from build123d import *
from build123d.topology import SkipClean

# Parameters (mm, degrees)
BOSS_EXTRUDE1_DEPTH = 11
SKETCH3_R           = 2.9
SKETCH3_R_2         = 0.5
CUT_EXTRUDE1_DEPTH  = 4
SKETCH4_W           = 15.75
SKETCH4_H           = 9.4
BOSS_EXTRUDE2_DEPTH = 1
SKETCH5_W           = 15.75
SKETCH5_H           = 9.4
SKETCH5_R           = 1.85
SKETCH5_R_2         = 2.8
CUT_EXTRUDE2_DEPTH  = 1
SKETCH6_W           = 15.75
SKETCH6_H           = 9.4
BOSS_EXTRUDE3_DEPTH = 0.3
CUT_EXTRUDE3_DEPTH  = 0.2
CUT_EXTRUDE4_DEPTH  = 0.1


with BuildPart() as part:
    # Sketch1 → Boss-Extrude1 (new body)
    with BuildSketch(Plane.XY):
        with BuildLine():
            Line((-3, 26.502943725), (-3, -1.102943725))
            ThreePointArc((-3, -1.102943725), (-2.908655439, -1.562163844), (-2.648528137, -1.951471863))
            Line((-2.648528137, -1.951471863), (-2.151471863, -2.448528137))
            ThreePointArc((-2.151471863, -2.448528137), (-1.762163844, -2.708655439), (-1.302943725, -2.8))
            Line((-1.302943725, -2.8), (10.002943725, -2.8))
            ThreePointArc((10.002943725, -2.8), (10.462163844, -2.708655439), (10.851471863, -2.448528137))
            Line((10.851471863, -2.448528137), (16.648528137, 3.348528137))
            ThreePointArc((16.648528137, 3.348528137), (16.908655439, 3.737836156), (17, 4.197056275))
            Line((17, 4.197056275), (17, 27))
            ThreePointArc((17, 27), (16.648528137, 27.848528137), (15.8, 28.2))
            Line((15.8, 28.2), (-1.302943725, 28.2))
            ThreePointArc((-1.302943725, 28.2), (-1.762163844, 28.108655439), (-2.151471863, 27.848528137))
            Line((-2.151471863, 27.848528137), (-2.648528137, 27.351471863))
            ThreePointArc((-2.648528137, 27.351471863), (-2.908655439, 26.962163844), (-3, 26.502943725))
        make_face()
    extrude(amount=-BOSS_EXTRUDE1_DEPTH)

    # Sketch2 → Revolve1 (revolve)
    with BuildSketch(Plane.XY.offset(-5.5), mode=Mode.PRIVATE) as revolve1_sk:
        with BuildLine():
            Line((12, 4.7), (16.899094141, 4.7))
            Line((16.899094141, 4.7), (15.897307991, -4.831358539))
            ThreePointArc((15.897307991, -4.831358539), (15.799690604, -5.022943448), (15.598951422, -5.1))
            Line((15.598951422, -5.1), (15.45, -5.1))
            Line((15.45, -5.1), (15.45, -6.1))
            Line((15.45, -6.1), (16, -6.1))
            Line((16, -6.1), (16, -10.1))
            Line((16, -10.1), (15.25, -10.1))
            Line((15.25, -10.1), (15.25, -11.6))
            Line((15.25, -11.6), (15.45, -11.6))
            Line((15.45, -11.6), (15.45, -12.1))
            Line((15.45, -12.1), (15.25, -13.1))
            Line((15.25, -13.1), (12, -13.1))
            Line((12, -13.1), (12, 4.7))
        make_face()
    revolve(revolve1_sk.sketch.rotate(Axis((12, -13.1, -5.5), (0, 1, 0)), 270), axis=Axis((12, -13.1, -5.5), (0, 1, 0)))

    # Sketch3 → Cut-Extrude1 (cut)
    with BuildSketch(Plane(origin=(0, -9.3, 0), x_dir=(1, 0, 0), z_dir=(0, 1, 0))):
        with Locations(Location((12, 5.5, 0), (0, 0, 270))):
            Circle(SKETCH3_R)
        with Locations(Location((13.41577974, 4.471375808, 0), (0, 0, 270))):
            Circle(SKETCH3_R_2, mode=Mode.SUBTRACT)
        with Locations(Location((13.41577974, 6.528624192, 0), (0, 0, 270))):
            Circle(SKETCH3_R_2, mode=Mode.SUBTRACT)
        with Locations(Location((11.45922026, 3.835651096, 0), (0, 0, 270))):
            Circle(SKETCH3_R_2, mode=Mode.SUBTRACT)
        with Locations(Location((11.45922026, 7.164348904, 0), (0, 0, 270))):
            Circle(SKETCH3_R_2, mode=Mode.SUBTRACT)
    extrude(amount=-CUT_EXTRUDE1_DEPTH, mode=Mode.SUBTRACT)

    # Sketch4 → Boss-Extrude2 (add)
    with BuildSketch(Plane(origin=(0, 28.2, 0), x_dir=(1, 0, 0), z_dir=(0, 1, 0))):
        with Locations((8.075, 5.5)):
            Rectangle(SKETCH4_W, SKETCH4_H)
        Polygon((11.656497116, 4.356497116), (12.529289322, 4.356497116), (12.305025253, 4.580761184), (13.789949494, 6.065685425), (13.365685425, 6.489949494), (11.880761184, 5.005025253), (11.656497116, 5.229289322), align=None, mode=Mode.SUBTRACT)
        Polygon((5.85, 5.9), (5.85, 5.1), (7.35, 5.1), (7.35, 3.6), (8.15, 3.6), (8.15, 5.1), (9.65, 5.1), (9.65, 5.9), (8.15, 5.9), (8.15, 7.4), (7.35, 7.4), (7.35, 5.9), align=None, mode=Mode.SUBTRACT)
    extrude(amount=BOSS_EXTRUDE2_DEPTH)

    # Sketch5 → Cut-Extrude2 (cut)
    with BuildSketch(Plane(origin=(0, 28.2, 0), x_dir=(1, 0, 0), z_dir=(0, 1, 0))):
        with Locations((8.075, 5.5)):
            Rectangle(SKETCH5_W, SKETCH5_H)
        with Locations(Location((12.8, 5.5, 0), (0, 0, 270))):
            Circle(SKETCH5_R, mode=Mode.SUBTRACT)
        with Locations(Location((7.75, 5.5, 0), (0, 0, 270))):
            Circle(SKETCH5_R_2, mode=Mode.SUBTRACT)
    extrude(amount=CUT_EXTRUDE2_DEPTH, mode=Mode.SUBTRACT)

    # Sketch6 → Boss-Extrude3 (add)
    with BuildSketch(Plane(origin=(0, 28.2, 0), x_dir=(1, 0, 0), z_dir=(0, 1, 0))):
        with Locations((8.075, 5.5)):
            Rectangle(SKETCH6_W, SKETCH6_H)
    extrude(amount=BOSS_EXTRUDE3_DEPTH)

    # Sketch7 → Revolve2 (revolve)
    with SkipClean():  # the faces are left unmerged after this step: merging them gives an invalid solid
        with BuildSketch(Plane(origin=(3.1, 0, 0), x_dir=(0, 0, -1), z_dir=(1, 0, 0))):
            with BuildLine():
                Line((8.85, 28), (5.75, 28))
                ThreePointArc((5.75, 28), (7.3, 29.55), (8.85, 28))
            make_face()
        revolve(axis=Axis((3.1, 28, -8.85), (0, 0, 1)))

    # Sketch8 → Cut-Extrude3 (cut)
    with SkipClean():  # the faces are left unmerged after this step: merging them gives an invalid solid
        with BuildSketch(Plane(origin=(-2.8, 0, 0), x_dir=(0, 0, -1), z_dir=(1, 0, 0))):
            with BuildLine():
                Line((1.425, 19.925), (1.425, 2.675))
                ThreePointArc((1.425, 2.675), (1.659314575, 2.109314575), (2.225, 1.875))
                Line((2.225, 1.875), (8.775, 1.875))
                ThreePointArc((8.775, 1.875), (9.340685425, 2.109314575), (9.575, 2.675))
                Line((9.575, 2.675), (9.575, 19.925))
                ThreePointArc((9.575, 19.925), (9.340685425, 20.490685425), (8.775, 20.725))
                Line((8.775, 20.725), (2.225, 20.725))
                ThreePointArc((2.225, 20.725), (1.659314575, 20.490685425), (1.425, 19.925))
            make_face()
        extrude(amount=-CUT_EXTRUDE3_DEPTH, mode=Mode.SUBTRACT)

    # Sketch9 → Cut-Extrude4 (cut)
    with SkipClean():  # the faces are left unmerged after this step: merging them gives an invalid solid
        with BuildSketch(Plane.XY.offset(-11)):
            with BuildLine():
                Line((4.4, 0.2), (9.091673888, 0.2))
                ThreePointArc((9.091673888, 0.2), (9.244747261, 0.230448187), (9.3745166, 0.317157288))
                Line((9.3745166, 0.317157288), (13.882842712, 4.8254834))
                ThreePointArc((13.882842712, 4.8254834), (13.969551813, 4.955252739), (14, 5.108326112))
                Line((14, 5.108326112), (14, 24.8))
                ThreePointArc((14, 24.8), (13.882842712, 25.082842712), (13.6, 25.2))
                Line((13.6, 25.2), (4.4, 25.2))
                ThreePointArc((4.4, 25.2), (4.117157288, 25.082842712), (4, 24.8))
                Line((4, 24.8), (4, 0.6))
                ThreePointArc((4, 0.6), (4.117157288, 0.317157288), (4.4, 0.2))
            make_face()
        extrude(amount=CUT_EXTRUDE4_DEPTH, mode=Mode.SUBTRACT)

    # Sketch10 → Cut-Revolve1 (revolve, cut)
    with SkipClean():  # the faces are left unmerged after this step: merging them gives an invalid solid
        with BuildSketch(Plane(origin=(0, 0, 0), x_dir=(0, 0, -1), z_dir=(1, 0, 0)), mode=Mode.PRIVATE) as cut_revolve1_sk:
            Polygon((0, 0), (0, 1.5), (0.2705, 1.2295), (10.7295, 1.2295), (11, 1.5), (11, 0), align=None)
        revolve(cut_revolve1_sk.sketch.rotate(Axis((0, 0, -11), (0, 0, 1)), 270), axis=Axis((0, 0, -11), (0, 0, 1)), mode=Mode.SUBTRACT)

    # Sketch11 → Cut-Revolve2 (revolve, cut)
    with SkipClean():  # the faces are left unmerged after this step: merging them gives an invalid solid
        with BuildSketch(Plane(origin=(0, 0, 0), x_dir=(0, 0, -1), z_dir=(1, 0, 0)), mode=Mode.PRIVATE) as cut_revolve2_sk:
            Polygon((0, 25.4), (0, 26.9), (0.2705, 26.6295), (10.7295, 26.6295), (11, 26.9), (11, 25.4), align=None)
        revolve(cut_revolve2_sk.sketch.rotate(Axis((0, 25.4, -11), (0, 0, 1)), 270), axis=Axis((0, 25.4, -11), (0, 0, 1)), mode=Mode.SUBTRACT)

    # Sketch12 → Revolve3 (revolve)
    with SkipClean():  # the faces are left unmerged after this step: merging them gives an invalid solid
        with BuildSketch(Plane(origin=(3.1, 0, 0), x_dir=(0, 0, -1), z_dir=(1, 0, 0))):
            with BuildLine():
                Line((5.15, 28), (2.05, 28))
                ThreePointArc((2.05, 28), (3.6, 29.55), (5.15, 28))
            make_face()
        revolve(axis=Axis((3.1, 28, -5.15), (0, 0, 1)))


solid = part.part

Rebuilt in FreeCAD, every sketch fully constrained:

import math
import FreeCAD as App
import Part
import Sketcher

V = App.Vector
Q = App.Units.Quantity


def add_polygon(sketch, points):
    """Adds a closed chain of lines whose ends are joined by coincident constraints."""
    first, n = sketch.GeometryCount, len(points)
    for a, b in zip(points, points[1:] + points[:1]):
        sketch.addGeometry(Part.LineSegment(App.Vector(*a, 0), App.Vector(*b, 0)), False)
    for i in range(n):
        sketch.addConstraint(Sketcher.Constraint("Coincident", first + i, 2, first + (i + 1) % n, 1))

doc = App.newDocument("Part")
body = doc.addObject("PartDesign::Body", "Body")

sketch1 = doc.addObject("Sketcher::SketchObject", "Sketch")
body.addObject(sketch1)
sketch1.AttachmentSupport = (doc.XY_Plane, [""])
sketch1.MapMode = "FlatFace"
sketch1.addGeometry([
    Part.LineSegment(V(-3, 26.502944, 0), V(-3, -1.102944, 0)),
    Part.ArcOfCircle(Part.Circle(V(-1.8, -1.102944, 0), V(0, 0, 1), 1.2), math.radians(180), math.radians(225)),
    Part.LineSegment(V(-2.648528, -1.951472, 0), V(-2.151472, -2.448528, 0)),
    Part.ArcOfCircle(Part.Circle(V(-1.302944, -1.6, 0), V(0, 0, 1), 1.2), math.radians(-135), math.radians(-90)),
    Part.LineSegment(V(-1.302944, -2.8, 0), V(10.002944, -2.8, 0)),
    Part.ArcOfCircle(Part.Circle(V(10.002944, -1.6, 0), V(0, 0, 1), 1.2), math.radians(-90), math.radians(-45)),
    Part.LineSegment(V(10.851472, -2.448528, 0), V(16.648528, 3.348528, 0)),
    Part.ArcOfCircle(Part.Circle(V(15.8, 4.197056, 0), V(0, 0, 1), 1.2), math.radians(-45), math.radians(0)),
    Part.LineSegment(V(17, 4.197056, 0), V(17, 27, 0)),
    Part.ArcOfCircle(Part.Circle(V(15.8, 27, 0), V(0, 0, 1), 1.2), math.radians(0), math.radians(90)),
    Part.LineSegment(V(15.8, 28.2, 0), V(-1.302944, 28.2, 0)),
    Part.ArcOfCircle(Part.Circle(V(-1.302944, 27, 0), V(0, 0, 1), 1.2), math.radians(90), math.radians(135)),
    Part.LineSegment(V(-2.151472, 27.848528, 0), V(-2.648528, 27.351472, 0)),
    Part.ArcOfCircle(Part.Circle(V(-1.8, 26.502944, 0), V(0, 0, 1), 1.2), math.radians(135), math.radians(180)),
], False)
sketch1.addConstraint([
    Sketcher.Constraint("Tangent", 0, 2, 1, 1),
    Sketcher.Constraint("Tangent", 1, 2, 2, 1),
    Sketcher.Constraint("Tangent", 2, 2, 3, 1),
    Sketcher.Constraint("Tangent", 3, 2, 4, 1),
    Sketcher.Constraint("Tangent", 4, 2, 5, 1),
    Sketcher.Constraint("Tangent", 5, 2, 6, 1),
    Sketcher.Constraint("Tangent", 6, 2, 7, 1),
    Sketcher.Constraint("Tangent", 7, 2, 8, 1),
    Sketcher.Constraint("Tangent", 8, 2, 9, 1),
    Sketcher.Constraint("Tangent", 9, 2, 10, 1),
    Sketcher.Constraint("Tangent", 10, 2, 11, 1),
    Sketcher.Constraint("Tangent", 11, 2, 12, 1),
    Sketcher.Constraint("Tangent", 12, 2, 13, 1),
    Sketcher.Constraint("Tangent", 13, 2, 0, 1),
    Sketcher.Constraint("Vertical", 0),
    Sketcher.Constraint("Horizontal", 4),
    Sketcher.Constraint("Vertical", 8),
    Sketcher.Constraint("Horizontal", 10),
    Sketcher.Constraint("Equal", 1, 3),
    Sketcher.Constraint("Equal", 3, 5),
    Sketcher.Constraint("Equal", 5, 7),
    Sketcher.Constraint("Equal", 7, 9),
    Sketcher.Constraint("Equal", 9, 11),
    Sketcher.Constraint("Equal", 11, 13),
    Sketcher.Constraint("Perpendicular", 2, 6),
    Sketcher.Constraint("Parallel", 6, 12),
    Sketcher.Constraint("Horizontal", 2, 2, 5, 2),
    Sketcher.Constraint("Vertical", 3, 3, 11, 3),
    Sketcher.Constraint("Radius", 1, Q("1.2 mm")),
    Sketcher.Constraint("DistanceY", -1, 1, 9, 3, Q("27 mm")),
    Sketcher.Constraint("DistanceX", 0, 2, -1, 1, Q("3 mm")),
    Sketcher.Constraint("DistanceX", -1, 1, 7, 2, Q("17 mm")),
    Sketcher.Constraint("DistanceY", 3, 3, -1, 1, Q("1.6 mm")),
    Sketcher.Constraint("DistanceY", 1, 3, 7, 3, Q("5.3 mm")),
    Sketcher.Constraint("DistanceX", 4, 1, 4, 2, Q("11.305887 mm")),
])
pad1 = doc.addObject("PartDesign::Pad", "Pad")
body.addObject(pad1)
pad1.Profile = sketch1
pad1.Length = 11
pad1.Reversed = True

sketch2 = doc.addObject("Sketcher::SketchObject", "Sketch001")
body.addObject(sketch2)
sketch2.AttachmentSupport = (doc.XY_Plane, [""])
sketch2.MapMode = "FlatFace"
sketch2.AttachmentOffset = App.Placement(V(0, 0, -5.5), App.Rotation())
sketch2.addGeometry([
    Part.LineSegment(V(16.899094, 4.7, 0), V(12, 4.7, 0)),
    Part.LineSegment(V(12, 4.7, 0), V(12, -13.1, 0)),
    Part.LineSegment(V(12, -13.1, 0), V(15.25, -13.1, 0)),
    Part.LineSegment(V(15.25, -13.1, 0), V(15.45, -12.1, 0)),
    Part.LineSegment(V(15.45, -12.1, 0), V(15.45, -11.6, 0)),
    Part.LineSegment(V(15.45, -11.6, 0), V(15.25, -11.6, 0)),
    Part.LineSegment(V(15.25, -11.6, 0), V(15.25, -10.1, 0)),
    Part.LineSegment(V(15.25, -10.1, 0), V(16, -10.1, 0)),
    Part.LineSegment(V(16, -10.1, 0), V(16, -6.1, 0)),
    Part.LineSegment(V(16, -6.1, 0), V(15.45, -6.1, 0)),
    Part.LineSegment(V(15.45, -6.1, 0), V(15.45, -5.1, 0)),
    Part.LineSegment(V(15.45, -5.1, 0), V(15.598951, -5.1, 0)),
    Part.ArcOfCircle(Part.Circle(V(15.598951, -4.8, 0), V(0, 0, 1), 0.3), math.radians(-90), math.radians(-6)),
    Part.LineSegment(V(15.897308, -4.831359, 0), V(16.899094, 4.7, 0)),
], False)
sketch2.addGeometry(Part.LineSegment(V(12, -13.1, 0), V(12, 4.7, 0)), True)
sketch2.addConstraint([
    Sketcher.Constraint("Coincident", 0, 2, 1, 1),
    Sketcher.Constraint("Coincident", 1, 2, 2, 1),
    Sketcher.Constraint("Coincident", 2, 2, 3, 1),
    Sketcher.Constraint("Coincident", 3, 2, 4, 1),
    Sketcher.Constraint("Coincident", 4, 2, 5, 1),
    Sketcher.Constraint("Coincident", 5, 2, 6, 1),
    Sketcher.Constraint("Coincident", 6, 2, 7, 1),
    Sketcher.Constraint("Coincident", 7, 2, 8, 1),
    Sketcher.Constraint("Coincident", 8, 2, 9, 1),
    Sketcher.Constraint("Coincident", 9, 2, 10, 1),
    Sketcher.Constraint("Coincident", 10, 2, 11, 1),
    Sketcher.Constraint("Tangent", 11, 2, 12, 1),
    Sketcher.Constraint("Tangent", 12, 2, 13, 1),
    Sketcher.Constraint("Coincident", 13, 2, 0, 1),
    Sketcher.Constraint("Horizontal", 0),
    Sketcher.Constraint("Vertical", 1),
    Sketcher.Constraint("Horizontal", 2),
    Sketcher.Constraint("Vertical", 4),
    Sketcher.Constraint("Horizontal", 5),
    Sketcher.Constraint("Vertical", 6),
    Sketcher.Constraint("Horizontal", 7),
    Sketcher.Constraint("Vertical", 8),
    Sketcher.Constraint("Horizontal", 9),
    Sketcher.Constraint("Vertical", 10),
    Sketcher.Constraint("Horizontal", 11),
    Sketcher.Constraint("Vertical", 14),
    Sketcher.Constraint("Coincident", 14, 1, 1, 2),
    Sketcher.Constraint("Horizontal", 13, 2, 14, 2),
    Sketcher.Constraint("Vertical", 2, 2, 5, 2),
    Sketcher.Constraint("Vertical", 4, 2, 9, 2),
    Sketcher.Constraint("Radius", 12, Q("0.3 mm")),
    Sketcher.Constraint("DistanceY", 8, 1, 8, 2, Q("4 mm")),
    Sketcher.Constraint("DistanceY", 10, 1, 10, 2, Q("1 mm")),
    Sketcher.Constraint("Angle", 13, Q("84 deg")),
    Sketcher.Constraint("DistanceX", 5, 2, 5, 1, Q("0.2 mm")),
    Sketcher.Constraint("DistanceY", 1, 2, 1, 1, Q("17.8 mm")),
    Sketcher.Constraint("DistanceY", 4, 1, 4, 2, Q("0.5 mm")),
    Sketcher.Constraint("DistanceY", 6, 1, 6, 2, Q("1.5 mm")),
    Sketcher.Constraint("DistanceX", -1, 1, 0, 2, Q("12 mm")),
    Sketcher.Constraint("DistanceX", -1, 1, 7, 2, Q("16 mm")),
    Sketcher.Constraint("DistanceY", 2, 2, 3, 2, Q("1 mm")),
    Sketcher.Constraint("DistanceX", 2, 1, 2, 2, Q("3.25 mm")),
    Sketcher.Constraint("DistanceY", 12, 3, -1, 1, Q("4.8 mm")),
    Sketcher.Constraint("DistanceX", 11, 1, 11, 2, Q("0.148951 mm")),
])
revolution = doc.addObject("PartDesign::Revolution", "Revolution")
body.addObject(revolution)
revolution.Profile = sketch2
revolution.ReferenceAxis = (sketch2, ["Axis0"])
revolution.Angle = 360

sketch3 = doc.addObject("Sketcher::SketchObject", "Sketch002")
body.addObject(sketch3)
sketch3.AttachmentSupport = (doc.XZ_Plane, [""])
sketch3.MapMode = "FlatFace"
sketch3.AttachmentOffset = App.Placement(V(0, 0, 9.3), App.Rotation())
sketch3.addGeometry([
    Part.Circle(V(12, -5.5, 0), V(0, 0, 1), 2.9),
    Part.Circle(V(11.45922, -7.164349, 0), V(0, 0, 1), 0.5),
    Part.Circle(V(11.45922, -3.835651, 0), V(0, 0, 1), 0.5),
    Part.Circle(V(13.41578, -6.528624, 0), V(0, 0, 1), 0.5),
    Part.Circle(V(13.41578, -4.471376, 0), V(0, 0, 1), 0.5),
], False)
sketch3.addConstraint([
    Sketcher.Constraint("Equal", 1, 2),
    Sketcher.Constraint("Equal", 2, 3),
    Sketcher.Constraint("Equal", 3, 4),
    Sketcher.Constraint("Vertical", 1, 3, 2, 3),
    Sketcher.Constraint("Vertical", 3, 3, 4, 3),
    Sketcher.Constraint("Diameter", 1, Q("1 mm")),
    Sketcher.Constraint("Diameter", 0, Q("5.8 mm")),
    Sketcher.Constraint("DistanceX", -1, 1, 0, 3, Q("12 mm")),
    Sketcher.Constraint("DistanceY", 0, 3, -1, 1, Q("5.5 mm")),
    Sketcher.Constraint("DistanceX", -1, 1, 1, 3, Q("11.45922 mm")),
    Sketcher.Constraint("DistanceY", 1, 3, -1, 1, Q("7.164349 mm")),
    Sketcher.Constraint("DistanceY", 2, 3, -1, 1, Q("3.835651 mm")),
    Sketcher.Constraint("DistanceX", -1, 1, 3, 3, Q("13.41578 mm")),
    Sketcher.Constraint("DistanceY", 3, 3, 4, 3, Q("2.057248 mm")),
    Sketcher.Constraint("DistanceY", 3, 3, -1, 1, Q("6.528624 mm")),
])
pocket1 = doc.addObject("PartDesign::Pocket", "Pocket")
body.addObject(pocket1)
pocket1.Profile = sketch3
pocket1.Length = 4
pocket1.Reversed = True

sketch4 = doc.addObject("Sketcher::SketchObject", "Sketch003")
body.addObject(sketch4)
sketch4.AttachmentSupport = (doc.XZ_Plane, [""])
sketch4.MapMode = "FlatFace"
sketch4.AttachmentOffset = App.Placement(V(0, 0, -28.2), App.Rotation())
add_polygon(sketch4, [(0.2, -10.2), (0.2, -0.8), (15.95, -0.8), (15.95, -10.2)])
add_polygon(sketch4, [(12.529289, -4.356497), (11.656497, -4.356497), (11.656497, -5.229289), (11.880761, -5.005025), (13.365685, -6.489949), (13.789949, -6.065685), (12.305025, -4.580761)])
add_polygon(sketch4, [(5.85, -5.1), (5.85, -5.9), (7.35, -5.9), (7.35, -7.4), (8.15, -7.4), (8.15, -5.9), (9.65, -5.9), (9.65, -5.1), (8.15, -5.1), (8.15, -3.6), (7.35, -3.6), (7.35, -5.1)])
sketch4.addConstraint([
    Sketcher.Constraint("Vertical", 0),
    Sketcher.Constraint("Horizontal", 1),
    Sketcher.Constraint("Vertical", 2),
    Sketcher.Constraint("Horizontal", 3),
    Sketcher.Constraint("Horizontal", 4),
    Sketcher.Constraint("Vertical", 5),
    Sketcher.Constraint("Vertical", 11),
    Sketcher.Constraint("Horizontal", 12),
    Sketcher.Constraint("Vertical", 13),
    Sketcher.Constraint("Horizontal", 14),
    Sketcher.Constraint("Vertical", 15),
    Sketcher.Constraint("Horizontal", 16),
    Sketcher.Constraint("Vertical", 17),
    Sketcher.Constraint("Horizontal", 18),
    Sketcher.Constraint("Vertical", 19),
    Sketcher.Constraint("Horizontal", 20),
    Sketcher.Constraint("Vertical", 21),
    Sketcher.Constraint("Horizontal", 22),
    Sketcher.Constraint("Perpendicular", 6, 7),
    Sketcher.Constraint("Perpendicular", 7, 8),
    Sketcher.Constraint("Perpendicular", 8, 9),
    Sketcher.Constraint("Perpendicular", 9, 10),
    Sketcher.Constraint("Horizontal", 12, 2, 15, 2),
    Sketcher.Constraint("Horizontal", 18, 2, 21, 2),
    Sketcher.Constraint("Vertical", 15, 2, 18, 2),
    Sketcher.Constraint("Vertical", 13, 2, 20, 2),
    Sketcher.Constraint("Equal", 12, 16),
    Sketcher.Constraint("Equal", 4, 5),
    Sketcher.Constraint("Equal", 20, 11),
    Sketcher.Constraint("Equal", 22, 13),
    Sketcher.Constraint("Equal", 15, 19),
    Sketcher.Constraint("Equal", 7, 9),
    Sketcher.Constraint("Equal", 6, 10),
    Sketcher.Constraint("DistanceX", 12, 1, 12, 2, Q("1.5 mm")),
    Sketcher.Constraint("DistanceX", 14, 1, 14, 2, Q("0.8 mm")),
    Sketcher.Constraint("DistanceY", 0, 1, 0, 2, Q("9.4 mm")),
    Sketcher.Constraint("Distance", 7, Q("2.1 mm")),
    Sketcher.Constraint("Distance", 8, Q("0.6 mm")),
    Sketcher.Constraint("DistanceX", 1, 1, 1, 2, Q("15.75 mm")),
    Sketcher.Constraint("DistanceX", -1, 1, 0, 2, Q("0.2 mm")),
    Sketcher.Constraint("DistanceY", 0, 2, -1, 1, Q("0.8 mm")),
    Sketcher.Constraint("DistanceY", 11, 2, -1, 1, Q("5.9 mm")),
    Sketcher.Constraint("DistanceX", -1, 1, 11, 2, Q("5.85 mm")),
    Sketcher.Constraint("DistanceX", 4, 2, 4, 1, Q("0.872792 mm")),
    Sketcher.Constraint("DistanceY", 5, 2, -1, 1, Q("5.229289 mm")),
    Sketcher.Constraint("DistanceX", -1, 1, 6, 2, Q("11.880761 mm")),
])
pad2 = doc.addObject("PartDesign::Pad", "Pad001")
body.addObject(pad2)
pad2.Profile = sketch4
pad2.Length = 1
pad2.Reversed = True

sketch5 = doc.addObject("Sketcher::SketchObject", "Sketch004")
body.addObject(sketch5)
sketch5.AttachmentSupport = (doc.XZ_Plane, [""])
sketch5.MapMode = "FlatFace"
sketch5.AttachmentOffset = App.Placement(V(0, 0, -28.2), App.Rotation())
add_polygon(sketch5, [(0.2, -10.2), (0.2, -0.8), (15.95, -0.8), (15.95, -10.2)])
sketch5.addGeometry(Part.Circle(V(7.75, -5.5, 0), V(0, 0, 1), 2.8), False)
sketch5.addGeometry(Part.Circle(V(12.8, -5.5, 0), V(0, 0, 1), 1.85), False)
sketch5.addConstraint([
    Sketcher.Constraint("Vertical", 0),
    Sketcher.Constraint("Horizontal", 1),
    Sketcher.Constraint("Vertical", 2),
    Sketcher.Constraint("Horizontal", 3),
    Sketcher.Constraint("Horizontal", 4, 3, 5, 3),
    Sketcher.Constraint("Diameter", 4, Q("5.6 mm")),
    Sketcher.Constraint("Diameter", 5, Q("3.7 mm")),
    Sketcher.Constraint("DistanceY", 0, 1, 0, 2, Q("9.4 mm")),
    Sketcher.Constraint("DistanceX", 1, 1, 1, 2, Q("15.75 mm")),
    Sketcher.Constraint("DistanceY", 4, 3, -1, 1, Q("5.5 mm")),
    Sketcher.Constraint("DistanceX", -1, 1, 5, 3, Q("12.8 mm")),
    Sketcher.Constraint("DistanceX", -1, 1, 0, 2, Q("0.2 mm")),
    Sketcher.Constraint("DistanceY", 0, 2, -1, 1, Q("0.8 mm")),
    Sketcher.Constraint("DistanceX", 4, 3, 1, 2, Q("8.2 mm")),
])
pocket2 = doc.addObject("PartDesign::Pocket", "Pocket001")
body.addObject(pocket2)
pocket2.Profile = sketch5
pocket2.Length = 1

sketch6 = doc.addObject("Sketcher::SketchObject", "Sketch005")
body.addObject(sketch6)
sketch6.AttachmentSupport = (doc.XZ_Plane, [""])
sketch6.MapMode = "FlatFace"
sketch6.AttachmentOffset = App.Placement(V(0, 0, -28.2), App.Rotation())
add_polygon(sketch6, [(0.2, -10.2), (0.2, -0.8), (15.95, -0.8), (15.95, -10.2)])
sketch6.addConstraint([
    Sketcher.Constraint("Vertical", 0),
    Sketcher.Constraint("Horizontal", 1),
    Sketcher.Constraint("Vertical", 2),
    Sketcher.Constraint("Horizontal", 3),
    Sketcher.Constraint("DistanceY", 0, 1, 0, 2, Q("9.4 mm")),
    Sketcher.Constraint("DistanceX", 1, 1, 1, 2, Q("15.75 mm")),
    Sketcher.Constraint("DistanceX", -1, 1, 0, 2, Q("0.2 mm")),
    Sketcher.Constraint("DistanceY", 0, 2, -1, 1, Q("0.8 mm")),
])
pad3 = doc.addObject("PartDesign::Pad", "Pad002")
body.addObject(pad3)
pad3.Profile = sketch6
pad3.Length = 0.3
pad3.Reversed = True

sketch7 = doc.addObject("Sketcher::SketchObject", "Sketch006")
body.addObject(sketch7)
sketch7.AttachmentSupport = (doc.YZ_Plane, [""])
sketch7.MapMode = "FlatFace"
sketch7.AttachmentOffset = App.Placement(V(0, 0, 3.1), App.Rotation())
sketch7.addGeometry([
    Part.LineSegment(V(28, -5.75, 0), V(28, -8.85, 0)),
    Part.ArcOfCircle(Part.Circle(V(28, -7.3, 0), V(0, 0, 1), 1.55), math.radians(-90), math.radians(90)),
], False)
sketch7.addGeometry(Part.LineSegment(V(28, -8.85, 0), V(28, -5.75, 0)), True)
sketch7.addConstraint([
    Sketcher.Constraint("Coincident", 0, 1, 1, 2),
    Sketcher.Constraint("Coincident", 1, 1, 0, 2),
    Sketcher.Constraint("Vertical", 0),
    Sketcher.Constraint("Vertical", 2),
    Sketcher.Constraint("Coincident", 2, 1, 1, 1),
    Sketcher.Constraint("Vertical", 1, 3, 0, 1),
    Sketcher.Constraint("Equal", 0, 2),
    Sketcher.Constraint("Radius", 1, Q("1.55 mm")),
    Sketcher.Constraint("DistanceX", -1, 1, 1, 3, Q("28 mm")),
    Sketcher.Constraint("DistanceY", 1, 3, -1, 1, Q("7.3 mm")),
])
revolution2 = doc.addObject("PartDesign::Revolution", "Revolution001")
body.addObject(revolution2)
revolution2.Profile = sketch7
revolution2.ReferenceAxis = (sketch7, ["Axis0"])
revolution2.Angle = 360

sketch8 = doc.addObject("Sketcher::SketchObject", "Sketch007")
body.addObject(sketch8)
sketch8.AttachmentSupport = (doc.YZ_Plane, [""])
sketch8.MapMode = "FlatFace"
sketch8.AttachmentOffset = App.Placement(V(0, 0, -2.8), App.Rotation())
sketch8.addGeometry([
    Part.LineSegment(V(19.925, -1.425, 0), V(2.675, -1.425, 0)),
    Part.ArcOfCircle(Part.Circle(V(2.675, -2.225, 0), V(0, 0, 1), 0.8), math.radians(90), math.radians(180)),
    Part.LineSegment(V(1.875, -2.225, 0), V(1.875, -8.775, 0)),
    Part.ArcOfCircle(Part.Circle(V(2.675, -8.775, 0), V(0, 0, 1), 0.8), math.radians(180), math.radians(270)),
    Part.LineSegment(V(2.675, -9.575, 0), V(19.925, -9.575, 0)),
    Part.ArcOfCircle(Part.Circle(V(19.925, -8.775, 0), V(0, 0, 1), 0.8), math.radians(-90), math.radians(0)),
    Part.LineSegment(V(20.725, -8.775, 0), V(20.725, -2.225, 0)),
    Part.ArcOfCircle(Part.Circle(V(19.925, -2.225, 0), V(0, 0, 1), 0.8), math.radians(0), math.radians(90)),
], False)
sketch8.addConstraint([
    Sketcher.Constraint("Tangent", 0, 2, 1, 1),
    Sketcher.Constraint("Tangent", 1, 2, 2, 1),
    Sketcher.Constraint("Tangent", 2, 2, 3, 1),
    Sketcher.Constraint("Tangent", 3, 2, 4, 1),
    Sketcher.Constraint("Tangent", 4, 2, 5, 1),
    Sketcher.Constraint("Tangent", 5, 2, 6, 1),
    Sketcher.Constraint("Tangent", 6, 2, 7, 1),
    Sketcher.Constraint("Tangent", 7, 2, 0, 1),
    Sketcher.Constraint("Horizontal", 0),
    Sketcher.Constraint("Vertical", 2),
    Sketcher.Constraint("Horizontal", 4),
    Sketcher.Constraint("Vertical", 6),
    Sketcher.Constraint("Equal", 1, 3),
    Sketcher.Constraint("Equal", 3, 5),
    Sketcher.Constraint("Equal", 5, 7),
    Sketcher.Constraint("Radius", 1, Q("0.8 mm")),
    Sketcher.Constraint("DistanceX", 0, 2, 0, 1, Q("17.25 mm")),
    Sketcher.Constraint("DistanceY", 2, 2, 2, 1, Q("6.55 mm")),
    Sketcher.Constraint("DistanceX", -1, 1, 1, 3, Q("2.675 mm")),
    Sketcher.Constraint("DistanceY", 1, 3, -1, 1, Q("2.225 mm")),
])
pocket3 = doc.addObject("PartDesign::Pocket", "Pocket002")
body.addObject(pocket3)
pocket3.Profile = sketch8
pocket3.Length = 0.2

sketch9 = doc.addObject("Sketcher::SketchObject", "Sketch008")
body.addObject(sketch9)
sketch9.AttachmentSupport = (doc.XY_Plane, [""])
sketch9.MapMode = "FlatFace"
sketch9.AttachmentOffset = App.Placement(V(0, 0, -11), App.Rotation())
sketch9.addGeometry([
    Part.LineSegment(V(4.4, 0.2, 0), V(9.091674, 0.2, 0)),
    Part.ArcOfCircle(Part.Circle(V(9.091674, 0.6, 0), V(0, 0, 1), 0.4), math.radians(-90), math.radians(-45)),
    Part.LineSegment(V(9.374517, 0.317157, 0), V(13.882843, 4.825483, 0)),
    Part.ArcOfCircle(Part.Circle(V(13.6, 5.108326, 0), V(0, 0, 1), 0.4), math.radians(-45), math.radians(0)),
    Part.LineSegment(V(14, 5.108326, 0), V(14, 24.8, 0)),
    Part.ArcOfCircle(Part.Circle(V(13.6, 24.8, 0), V(0, 0, 1), 0.4), math.radians(0), math.radians(90)),
    Part.LineSegment(V(13.6, 25.2, 0), V(4.4, 25.2, 0)),
    Part.ArcOfCircle(Part.Circle(V(4.4, 24.8, 0), V(0, 0, 1), 0.4), math.radians(90), math.radians(180)),
    Part.LineSegment(V(4, 24.8, 0), V(4, 0.6, 0)),
    Part.ArcOfCircle(Part.Circle(V(4.4, 0.6, 0), V(0, 0, 1), 0.4), math.radians(-180), math.radians(-90)),
], False)
sketch9.addConstraint([
    Sketcher.Constraint("Tangent", 0, 2, 1, 1),
    Sketcher.Constraint("Tangent", 1, 2, 2, 1),
    Sketcher.Constraint("Tangent", 2, 2, 3, 1),
    Sketcher.Constraint("Tangent", 3, 2, 4, 1),
    Sketcher.Constraint("Tangent", 4, 2, 5, 1),
    Sketcher.Constraint("Tangent", 5, 2, 6, 1),
    Sketcher.Constraint("Tangent", 6, 2, 7, 1),
    Sketcher.Constraint("Tangent", 7, 2, 8, 1),
    Sketcher.Constraint("Tangent", 8, 2, 9, 1),
    Sketcher.Constraint("Tangent", 9, 2, 0, 1),
    Sketcher.Constraint("Horizontal", 0),
    Sketcher.Constraint("Vertical", 4),
    Sketcher.Constraint("Horizontal", 6),
    Sketcher.Constraint("Vertical", 8),
    Sketcher.Constraint("Equal", 1, 3),
    Sketcher.Constraint("Equal", 3, 5),
    Sketcher.Constraint("Equal", 5, 7),
    Sketcher.Constraint("Equal", 7, 9),
    Sketcher.Constraint("Radius", 1, Q("0.4 mm")),
    Sketcher.Constraint("Angle", 2, Q("45 deg")),
    Sketcher.Constraint("DistanceX", 6, 2, 6, 1, Q("9.2 mm")),
    Sketcher.Constraint("DistanceY", 8, 2, 8, 1, Q("24.2 mm")),
    Sketcher.Constraint("DistanceX", -1, 1, 3, 2, Q("14 mm")),
    Sketcher.Constraint("DistanceY", -1, 1, 1, 3, Q("0.6 mm")),
    Sketcher.Constraint("DistanceX", 0, 1, 0, 2, Q("4.691674 mm")),
])
pocket4 = doc.addObject("PartDesign::Pocket", "Pocket003")
body.addObject(pocket4)
pocket4.Profile = sketch9
pocket4.Length = 0.1
pocket4.Reversed = True

sketch10 = doc.addObject("Sketcher::SketchObject", "Sketch009")
body.addObject(sketch10)
sketch10.AttachmentSupport = (doc.YZ_Plane, [""])
sketch10.MapMode = "FlatFace"
add_polygon(sketch10, [(1.5, 0), (0, 0), (0, -11), (1.5, -11), (1.2295, -10.7295), (1.2295, -0.2705)])
sketch10.addConstraint([
    Sketcher.Constraint("Horizontal", 0),
    Sketcher.Constraint("Vertical", 1),
    Sketcher.Constraint("Horizontal", 2),
    Sketcher.Constraint("Vertical", 4),
    Sketcher.Constraint("Coincident", 0, 2, -1, 1),
    Sketcher.Constraint("Perpendicular", 3, 5),
    Sketcher.Constraint("Vertical", 2, 2, 5, 2),
    Sketcher.Constraint("Equal", 3, 5),
    Sketcher.Constraint("DistanceY", 1, 2, 1, 1, Q("11 mm")),
    Sketcher.Constraint("DistanceX", 0, 2, 0, 1, Q("1.5 mm")),
    Sketcher.Constraint("DistanceY", 4, 1, 4, 2, Q("10.459 mm")),
])
groove = doc.addObject("PartDesign::Groove", "Groove")
body.addObject(groove)
groove.Profile = sketch10
groove.ReferenceAxis = (sketch10, ["V_Axis"])
groove.Angle = 360

sketch11 = doc.addObject("Sketcher::SketchObject", "Sketch010")
body.addObject(sketch11)
sketch11.AttachmentSupport = (doc.YZ_Plane, [""])
sketch11.MapMode = "FlatFace"
add_polygon(sketch11, [(26.9, 0), (25.4, 0), (25.4, -11), (26.9, -11), (26.6295, -10.7295), (26.6295, -0.2705)])
sketch11.addGeometry(Part.LineSegment(V(25.4, -11, 0), V(25.4, 0, 0)), True)
sketch11.addConstraint([
    Sketcher.Constraint("Horizontal", 0),
    Sketcher.Constraint("Vertical", 1),
    Sketcher.Constraint("Horizontal", 2),
    Sketcher.Constraint("Vertical", 4),
    Sketcher.Constraint("Vertical", 6),
    Sketcher.Constraint("Coincident", 6, 1, 1, 2),
    Sketcher.Constraint("PointOnObject", 0, 2, -1),
    Sketcher.Constraint("PointOnObject", 6, 2, -1),
    Sketcher.Constraint("Perpendicular", 3, 5),
    Sketcher.Constraint("Vertical", 2, 2, 5, 2),
    Sketcher.Constraint("Equal", 3, 5),
    Sketcher.Constraint("DistanceY", 1, 2, 1, 1, Q("11 mm")),
    Sketcher.Constraint("DistanceX", 0, 2, 0, 1, Q("1.5 mm")),
    Sketcher.Constraint("DistanceX", -1, 1, 0, 2, Q("25.4 mm")),
    Sketcher.Constraint("DistanceY", 4, 1, 4, 2, Q("10.459 mm")),
])
groove2 = doc.addObject("PartDesign::Groove", "Groove001")
body.addObject(groove2)
groove2.Profile = sketch11
groove2.ReferenceAxis = (sketch11, ["Axis0"])
groove2.Angle = 360

sketch12 = doc.addObject("Sketcher::SketchObject", "Sketch011")
body.addObject(sketch12)
sketch12.AttachmentSupport = (doc.YZ_Plane, [""])
sketch12.MapMode = "FlatFace"
sketch12.AttachmentOffset = App.Placement(V(0, 0, 3.1), App.Rotation())
sketch12.addGeometry([
    Part.LineSegment(V(28, -2.05, 0), V(28, -5.15, 0)),
    Part.ArcOfCircle(Part.Circle(V(28, -3.6, 0), V(0, 0, 1), 1.55), math.radians(-90), math.radians(90)),
], False)
sketch12.addGeometry(Part.LineSegment(V(28, -5.15, 0), V(28, -2.05, 0)), True)
sketch12.addConstraint([
    Sketcher.Constraint("Coincident", 0, 1, 1, 2),
    Sketcher.Constraint("Coincident", 1, 1, 0, 2),
    Sketcher.Constraint("Vertical", 0),
    Sketcher.Constraint("Vertical", 2),
    Sketcher.Constraint("Coincident", 2, 1, 1, 1),
    Sketcher.Constraint("Vertical", 1, 3, 0, 1),
    Sketcher.Constraint("Equal", 0, 2),
    Sketcher.Constraint("Radius", 1, Q("1.55 mm")),
    Sketcher.Constraint("DistanceX", -1, 1, 1, 3, Q("28 mm")),
    Sketcher.Constraint("DistanceY", 1, 3, -1, 1, Q("3.6 mm")),
])
revolution3 = doc.addObject("PartDesign::Revolution", "Revolution002")
body.addObject(revolution3)
revolution3.Profile = sketch12
revolution3.ReferenceAxis = (sketch12, ["Axis0"])
revolution3.Angle = 360

doc.recompute()
